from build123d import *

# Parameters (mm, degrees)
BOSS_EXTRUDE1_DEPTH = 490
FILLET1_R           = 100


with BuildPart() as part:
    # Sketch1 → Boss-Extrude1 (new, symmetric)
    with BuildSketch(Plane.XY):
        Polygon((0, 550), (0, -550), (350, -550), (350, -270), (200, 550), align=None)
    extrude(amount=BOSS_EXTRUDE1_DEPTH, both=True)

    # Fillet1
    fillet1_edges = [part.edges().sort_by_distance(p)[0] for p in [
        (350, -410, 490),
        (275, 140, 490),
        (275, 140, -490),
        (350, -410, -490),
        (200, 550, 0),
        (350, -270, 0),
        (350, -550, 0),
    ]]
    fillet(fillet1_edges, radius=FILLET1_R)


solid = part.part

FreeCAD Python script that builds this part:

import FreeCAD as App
import Part
import Sketcher
Q = App.Units.Quantity


def edges_at(feature, points):
    """Names of the edges that pass closest to the given points."""
    edges = feature.Shape.Edges
    near = lambda p: min(range(len(edges)), key=lambda i: edges[i].distToShape(Part.Vertex(*p))[0])
    return sorted({f"Edge{near(p) + 1}" for p in points})


def add_polygon(sketch, points):
    """Adds a closed chain of lines whose ends are joined by coincident constraints."""
    first, n = sketch.GeometryCount, len(points)
    for a, b in zip(points, points[1:] + points[:1]):
        sketch.addGeometry(Part.LineSegment(App.Vector(*a, 0), App.Vector(*b, 0)), False)
    for i in range(n):
        sketch.addConstraint(Sketcher.Constraint("Coincident", first + i, 2, first + (i + 1) % n, 1))

doc = App.newDocument("Part")
body = doc.addObject("PartDesign::Body", "Body")

# Sketch on XY plane
sketch1 = body.newObject("Sketcher::SketchObject", "Sketch")
sketch1.AttachmentSupport = (doc.getObject("XY_Plane"), [""])
sketch1.MapMode = "FlatFace"
add_polygon(sketch1, [(0, 550), (0, -550), (350, -550), (350, -270), (200, 550)])  # lines 0-4
sketch1.addConstraint([
    Sketcher.Constraint("Vertical", 0),
    Sketcher.Constraint("Horizontal", 1),
    Sketcher.Constraint("Vertical", 2),
    Sketcher.Constraint("Horizontal", 4),
    Sketcher.Constraint("Symmetric", 0, 2, 4, 2, -1, 1),
    Sketcher.Constraint("DistanceX", 1, 1, 1, 2, Q("350 mm")),
    Sketcher.Constraint("DistanceX", 4, 2, 4, 1, Q("200 mm")),
    Sketcher.Constraint("DistanceY", 0, 2, 0, 1, Q("1100 mm")),
    Sketcher.Constraint("DistanceY", 2, 1, 2, 2, Q("280 mm")),
])
pad1 = body.newObject("PartDesign::Pad", "Pad")
pad1.Profile = sketch1
pad1.Length = 980
pad1.Midplane = True
doc.recompute()

fillet = body.newObject("PartDesign::Fillet", "Fillet")
fillet.Base = (pad1, edges_at(pad1, [
    (350, -410, 490),
    (275, 140, 490),
    (275, 140, -490),
    (350, -410, -490),
    (200, 550, 0),
    (350, -270, 0),
    (350, -550, 0),
]))
fillet.Radius = 100

doc.recompute()
